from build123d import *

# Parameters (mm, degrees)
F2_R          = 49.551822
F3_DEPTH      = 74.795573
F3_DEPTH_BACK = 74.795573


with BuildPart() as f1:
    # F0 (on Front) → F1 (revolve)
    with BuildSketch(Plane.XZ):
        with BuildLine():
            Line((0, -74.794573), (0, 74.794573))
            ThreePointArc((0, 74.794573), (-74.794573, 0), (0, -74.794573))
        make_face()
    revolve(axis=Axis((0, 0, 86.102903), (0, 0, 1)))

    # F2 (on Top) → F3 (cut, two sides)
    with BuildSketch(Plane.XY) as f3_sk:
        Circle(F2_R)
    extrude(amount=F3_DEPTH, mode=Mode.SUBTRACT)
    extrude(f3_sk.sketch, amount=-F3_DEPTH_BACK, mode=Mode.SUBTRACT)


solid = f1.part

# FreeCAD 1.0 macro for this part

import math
import FreeCAD as App
import Part
import Sketcher
Q = App.Units.Quantity

doc = App.newDocument("Part")
body = doc.addObject("PartDesign::Body", "Body")

# Sketch on XZ plane
sketch1 = body.newObject("Sketcher::SketchObject", "Sketch")
sketch1.AttachmentSupport = (doc.getObject("XZ_Plane"), [""])
sketch1.MapMode = "FlatFace"
sketch1.addGeometry(Part.LineSegment(App.Vector(0, -74.794573, 0), App.Vector(0, 74.794573, 0)), False)
sketch1.addGeometry(Part.ArcOfCircle(Part.Circle(App.Vector(0, 0, 0), App.Vector(0, 0, 1), 74.794573), math.radians(90), math.radians(270)), False)
sketch1.addConstraint(Sketcher.Constraint("Coincident", 0, 1, 1, 2))
sketch1.addConstraint(Sketcher.Constraint("Coincident", 1, 1, 0, 2))
sketch1.addConstraint(Sketcher.Constraint("Vertical", 0))
sketch1.addConstraint(Sketcher.Constraint("Coincident", 1, 3, -1, 1))
sketch1.addConstraint(Sketcher.Constraint("PointOnObject", 0, 1, -2))
sketch1.addConstraint(Sketcher.Constraint("Radius", 1, Q("74.794573 mm")))
revolution = body.newObject("PartDesign::Revolution", "Revolution")
revolution.Profile = sketch1
revolution.ReferenceAxis = (sketch1, ["V_Axis"])
revolution.Angle = 360

# Sketch on XY plane
sketch2 = body.newObject("Sketcher::SketchObject", "Sketch001")
sketch2.AttachmentSupport = (doc.getObject("XY_Plane"), [""])
sketch2.MapMode = "FlatFace"
sketch2.addGeometry(Part.Circle(App.Vector(0, 0, 0), App.Vector(0, 0, 1), 49.551822), False)
sketch2.addConstraint(Sketcher.Constraint("Coincident", 0, 3, -1, 1))
sketch2.addConstraint(Sketcher.Constraint("Diameter", 0, Q("99.103644 mm")))
pocket1 = body.newObject("PartDesign::Pocket", "Pocket")
pocket1.Profile = sketch2
pocket1.Type = "ThroughAll"
pocket1.Midplane = True

doc.recompute()
